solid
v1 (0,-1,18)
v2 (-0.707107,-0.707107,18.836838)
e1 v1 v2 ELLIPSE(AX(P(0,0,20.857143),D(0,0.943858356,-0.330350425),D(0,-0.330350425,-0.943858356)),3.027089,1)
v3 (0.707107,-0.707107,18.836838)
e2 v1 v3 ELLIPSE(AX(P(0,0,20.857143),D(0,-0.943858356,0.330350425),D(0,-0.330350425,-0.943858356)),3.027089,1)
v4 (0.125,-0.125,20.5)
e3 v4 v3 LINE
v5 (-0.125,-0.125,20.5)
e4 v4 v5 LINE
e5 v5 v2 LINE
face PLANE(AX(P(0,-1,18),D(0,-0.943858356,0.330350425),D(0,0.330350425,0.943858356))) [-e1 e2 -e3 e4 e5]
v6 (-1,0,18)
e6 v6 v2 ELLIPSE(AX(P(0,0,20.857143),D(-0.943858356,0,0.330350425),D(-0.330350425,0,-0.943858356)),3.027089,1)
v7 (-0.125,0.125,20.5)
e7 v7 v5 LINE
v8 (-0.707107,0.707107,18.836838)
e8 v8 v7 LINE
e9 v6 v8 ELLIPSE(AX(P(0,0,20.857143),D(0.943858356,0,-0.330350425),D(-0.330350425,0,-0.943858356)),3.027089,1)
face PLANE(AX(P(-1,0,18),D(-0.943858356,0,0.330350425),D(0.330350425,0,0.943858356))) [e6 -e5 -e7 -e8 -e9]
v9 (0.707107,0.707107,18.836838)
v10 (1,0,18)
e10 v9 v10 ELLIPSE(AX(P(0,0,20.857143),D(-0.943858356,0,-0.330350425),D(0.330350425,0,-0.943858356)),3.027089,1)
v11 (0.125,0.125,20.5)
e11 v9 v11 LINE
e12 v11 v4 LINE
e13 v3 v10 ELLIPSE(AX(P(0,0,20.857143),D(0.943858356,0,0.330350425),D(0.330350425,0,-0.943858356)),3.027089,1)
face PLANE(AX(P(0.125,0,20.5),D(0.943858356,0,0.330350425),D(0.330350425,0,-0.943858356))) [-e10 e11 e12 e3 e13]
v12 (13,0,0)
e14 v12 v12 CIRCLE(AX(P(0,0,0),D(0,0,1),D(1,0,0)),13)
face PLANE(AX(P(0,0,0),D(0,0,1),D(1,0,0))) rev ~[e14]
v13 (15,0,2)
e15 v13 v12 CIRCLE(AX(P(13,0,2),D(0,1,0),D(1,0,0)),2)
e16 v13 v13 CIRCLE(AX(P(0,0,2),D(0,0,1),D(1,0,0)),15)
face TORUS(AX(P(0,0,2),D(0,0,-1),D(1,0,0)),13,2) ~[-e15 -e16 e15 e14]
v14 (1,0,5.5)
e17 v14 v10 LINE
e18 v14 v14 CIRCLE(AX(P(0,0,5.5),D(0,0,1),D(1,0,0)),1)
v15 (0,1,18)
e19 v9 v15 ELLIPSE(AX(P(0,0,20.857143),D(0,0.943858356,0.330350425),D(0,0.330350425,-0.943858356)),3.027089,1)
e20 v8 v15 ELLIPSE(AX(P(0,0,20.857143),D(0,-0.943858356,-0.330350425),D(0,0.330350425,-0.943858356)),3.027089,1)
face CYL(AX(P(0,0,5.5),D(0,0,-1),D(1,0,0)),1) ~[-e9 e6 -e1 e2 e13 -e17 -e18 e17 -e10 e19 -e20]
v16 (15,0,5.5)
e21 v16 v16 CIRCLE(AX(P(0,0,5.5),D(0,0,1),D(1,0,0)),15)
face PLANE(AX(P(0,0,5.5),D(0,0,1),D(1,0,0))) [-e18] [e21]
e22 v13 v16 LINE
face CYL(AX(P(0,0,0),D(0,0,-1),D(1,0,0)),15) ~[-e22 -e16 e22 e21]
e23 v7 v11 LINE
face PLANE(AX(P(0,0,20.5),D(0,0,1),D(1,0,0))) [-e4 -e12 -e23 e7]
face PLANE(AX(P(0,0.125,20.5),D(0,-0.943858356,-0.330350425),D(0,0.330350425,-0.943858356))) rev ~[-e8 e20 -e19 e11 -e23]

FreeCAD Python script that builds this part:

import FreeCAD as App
import Part
import Sketcher

V = App.Vector


def edges_at(feature, points):
    """Names of the edges that pass closest to the given points."""
    edges = feature.Shape.Edges
    near = lambda p: min(range(len(edges)), key=lambda i: edges[i].distToShape(Part.Vertex(*p))[0])
    return sorted({f"Edge{near(p) + 1}" for p in points})


def add_polygon(sketch, points):
    """Adds a closed chain of lines whose ends are joined by coincident constraints."""
    first, n = sketch.GeometryCount, len(points)
    for a, b in zip(points, points[1:] + points[:1]):
        sketch.addGeometry(Part.LineSegment(App.Vector(*a, 0), App.Vector(*b, 0)), False)
    for i in range(n):
        sketch.addConstraint(Sketcher.Constraint("Coincident", first + i, 2, first + (i + 1) % n, 1))

doc = App.newDocument("Part")
body = doc.addObject("PartDesign::Body", "Body")

# Sketch on XY plane
sketch1 = doc.addObject("Sketcher::SketchObject", "Sketch")
body.addObject(sketch1)
sketch1.AttachmentSupport = (doc.XY_Plane, [""])
sketch1.MapMode = "FlatFace"
sketch1.addGeometry(Part.Circle(V(0, 0, 0), V(0, 0, 1), 15), False)
sketch1.addConstraint(Sketcher.Constraint("Coincident", 0, 3, -1, 1))
sketch1.addConstraint(Sketcher.Constraint("Diameter", 0, 30.0))
pad1 = doc.addObject("PartDesign::Pad", "Pad")
body.addObject(pad1)
pad1.Profile = sketch1
pad1.Length = 5.5
doc.recompute()

fillet = doc.addObject("PartDesign::Fillet", "Fillet")
body.addObject(fillet)
fillet.Base = (pad1, edges_at(pad1, [(-15, 0, 0)]))
fillet.Radius = 2

# Sketch on XY plane
sketch2 = doc.addObject("Sketcher::SketchObject", "Sketch001")
body.addObject(sketch2)
sketch2.AttachmentSupport = (doc.XY_Plane, [""])
sketch2.MapMode = "FlatFace"
sketch2.AttachmentOffset = App.Placement(V(0, 0, 5.5), App.Rotation())
sketch2.addGeometry(Part.Circle(V(0, 0, 0), V(0, 0, 1), 1), False)
sketch2.addConstraint(Sketcher.Constraint("Coincident", 0, 3, -1, 1))
sketch2.addConstraint(Sketcher.Constraint("Diameter", 0, 2.0))
pad2 = doc.addObject("PartDesign::Pad", "Pad001")
body.addObject(pad2)
pad2.Profile = sketch2
pad2.Length = 15

# Sketch on XZ plane
sketch3 = doc.addObject("Sketcher::SketchObject", "Sketch002")
body.addObject(sketch3)
sketch3.AttachmentSupport = (doc.XZ_Plane, [""])
sketch3.MapMode = "FlatFace"
add_polygon(sketch3, [(1, 20.5), (0.1, 20.5), (1, 18)])  # lines 0-2
add_polygon(sketch3, [(-0.1, 20.5), (-1, 20.5), (-1, 18)])  # lines 3-5
sketch3.addConstraint(Sketcher.Constraint("Horizontal", 0))
sketch3.addConstraint(Sketcher.Constraint("Vertical", 2))
sketch3.addConstraint(Sketcher.Constraint("Horizontal", 3))
sketch3.addConstraint(Sketcher.Constraint("Vertical", 4))
sketch3.addConstraint(Sketcher.Constraint("Symmetric", 2, 2, 3, 2, -2))
sketch3.addConstraint(Sketcher.Constraint("Horizontal", 1, 2, 4, 2))
sketch3.addConstraint(Sketcher.Constraint("Equal", 0, 3))
sketch3.addConstraint(Sketcher.Constraint("DistanceY", 2, 1, 2, 2, 2.5))
sketch3.addConstraint(Sketcher.Constraint("DistanceX", -1, 1, 1, 2, 1.0))
sketch3.addConstraint(Sketcher.Constraint("DistanceY", -1, 1, 1, 2, 18.0))
sketch3.addConstraint(Sketcher.Constraint("DistanceX", 0, 2, 0, 1, 0.875))
pocket1 = doc.addObject("PartDesign::Pocket", "Pocket")
body.addObject(pocket1)
pocket1.Profile = sketch3
pocket1.Type = "ThroughAll"
pocket1.Midplane = True

# Sketch on YZ plane
sketch4 = doc.addObject("Sketcher::SketchObject", "Sketch003")
body.addObject(sketch4)
sketch4.AttachmentSupport = (doc.YZ_Plane, [""])
sketch4.MapMode = "FlatFace"
add_polygon(sketch4, [(-1, 20.5), (-1, 18), (-0.1, 20.5)])  # lines 0-2
add_polygon(sketch4, [(1, 20.5), (0.1, 20.5), (1, 18)])  # lines 3-5
sketch4.addConstraint(Sketcher.Constraint("Vertical", 0))
sketch4.addConstraint(Sketcher.Constraint("Horizontal", 2))
sketch4.addConstraint(Sketcher.Constraint("Horizontal", 3))
sketch4.addConstraint(Sketcher.Constraint("Vertical", 5))
sketch4.addConstraint(Sketcher.Constraint("Symmetric", 1, 2, 3, 2, -2))
sketch4.addConstraint(Sketcher.Constraint("Symmetric", 0, 2, 4, 2, -2))
sketch4.addConstraint(Sketcher.Constraint("DistanceY", 0, 2, 0, 1, 2.5))
sketch4.addConstraint(Sketcher.Constraint("DistanceX", 0, 2, -1, 1, 1.0))
sketch4.addConstraint(Sketcher.Constraint("DistanceY", -1, 1, 0, 2, 18.0))
sketch4.addConstraint(Sketcher.Constraint("DistanceX", 2, 2, 2, 1, 0.875))
pocket2 = doc.addObject("PartDesign::Pocket", "Pocket001")
body.addObject(pocket2)
pocket2.Profile = sketch4
pocket2.Type = "ThroughAll"
pocket2.Midplane = True

doc.recompute()
